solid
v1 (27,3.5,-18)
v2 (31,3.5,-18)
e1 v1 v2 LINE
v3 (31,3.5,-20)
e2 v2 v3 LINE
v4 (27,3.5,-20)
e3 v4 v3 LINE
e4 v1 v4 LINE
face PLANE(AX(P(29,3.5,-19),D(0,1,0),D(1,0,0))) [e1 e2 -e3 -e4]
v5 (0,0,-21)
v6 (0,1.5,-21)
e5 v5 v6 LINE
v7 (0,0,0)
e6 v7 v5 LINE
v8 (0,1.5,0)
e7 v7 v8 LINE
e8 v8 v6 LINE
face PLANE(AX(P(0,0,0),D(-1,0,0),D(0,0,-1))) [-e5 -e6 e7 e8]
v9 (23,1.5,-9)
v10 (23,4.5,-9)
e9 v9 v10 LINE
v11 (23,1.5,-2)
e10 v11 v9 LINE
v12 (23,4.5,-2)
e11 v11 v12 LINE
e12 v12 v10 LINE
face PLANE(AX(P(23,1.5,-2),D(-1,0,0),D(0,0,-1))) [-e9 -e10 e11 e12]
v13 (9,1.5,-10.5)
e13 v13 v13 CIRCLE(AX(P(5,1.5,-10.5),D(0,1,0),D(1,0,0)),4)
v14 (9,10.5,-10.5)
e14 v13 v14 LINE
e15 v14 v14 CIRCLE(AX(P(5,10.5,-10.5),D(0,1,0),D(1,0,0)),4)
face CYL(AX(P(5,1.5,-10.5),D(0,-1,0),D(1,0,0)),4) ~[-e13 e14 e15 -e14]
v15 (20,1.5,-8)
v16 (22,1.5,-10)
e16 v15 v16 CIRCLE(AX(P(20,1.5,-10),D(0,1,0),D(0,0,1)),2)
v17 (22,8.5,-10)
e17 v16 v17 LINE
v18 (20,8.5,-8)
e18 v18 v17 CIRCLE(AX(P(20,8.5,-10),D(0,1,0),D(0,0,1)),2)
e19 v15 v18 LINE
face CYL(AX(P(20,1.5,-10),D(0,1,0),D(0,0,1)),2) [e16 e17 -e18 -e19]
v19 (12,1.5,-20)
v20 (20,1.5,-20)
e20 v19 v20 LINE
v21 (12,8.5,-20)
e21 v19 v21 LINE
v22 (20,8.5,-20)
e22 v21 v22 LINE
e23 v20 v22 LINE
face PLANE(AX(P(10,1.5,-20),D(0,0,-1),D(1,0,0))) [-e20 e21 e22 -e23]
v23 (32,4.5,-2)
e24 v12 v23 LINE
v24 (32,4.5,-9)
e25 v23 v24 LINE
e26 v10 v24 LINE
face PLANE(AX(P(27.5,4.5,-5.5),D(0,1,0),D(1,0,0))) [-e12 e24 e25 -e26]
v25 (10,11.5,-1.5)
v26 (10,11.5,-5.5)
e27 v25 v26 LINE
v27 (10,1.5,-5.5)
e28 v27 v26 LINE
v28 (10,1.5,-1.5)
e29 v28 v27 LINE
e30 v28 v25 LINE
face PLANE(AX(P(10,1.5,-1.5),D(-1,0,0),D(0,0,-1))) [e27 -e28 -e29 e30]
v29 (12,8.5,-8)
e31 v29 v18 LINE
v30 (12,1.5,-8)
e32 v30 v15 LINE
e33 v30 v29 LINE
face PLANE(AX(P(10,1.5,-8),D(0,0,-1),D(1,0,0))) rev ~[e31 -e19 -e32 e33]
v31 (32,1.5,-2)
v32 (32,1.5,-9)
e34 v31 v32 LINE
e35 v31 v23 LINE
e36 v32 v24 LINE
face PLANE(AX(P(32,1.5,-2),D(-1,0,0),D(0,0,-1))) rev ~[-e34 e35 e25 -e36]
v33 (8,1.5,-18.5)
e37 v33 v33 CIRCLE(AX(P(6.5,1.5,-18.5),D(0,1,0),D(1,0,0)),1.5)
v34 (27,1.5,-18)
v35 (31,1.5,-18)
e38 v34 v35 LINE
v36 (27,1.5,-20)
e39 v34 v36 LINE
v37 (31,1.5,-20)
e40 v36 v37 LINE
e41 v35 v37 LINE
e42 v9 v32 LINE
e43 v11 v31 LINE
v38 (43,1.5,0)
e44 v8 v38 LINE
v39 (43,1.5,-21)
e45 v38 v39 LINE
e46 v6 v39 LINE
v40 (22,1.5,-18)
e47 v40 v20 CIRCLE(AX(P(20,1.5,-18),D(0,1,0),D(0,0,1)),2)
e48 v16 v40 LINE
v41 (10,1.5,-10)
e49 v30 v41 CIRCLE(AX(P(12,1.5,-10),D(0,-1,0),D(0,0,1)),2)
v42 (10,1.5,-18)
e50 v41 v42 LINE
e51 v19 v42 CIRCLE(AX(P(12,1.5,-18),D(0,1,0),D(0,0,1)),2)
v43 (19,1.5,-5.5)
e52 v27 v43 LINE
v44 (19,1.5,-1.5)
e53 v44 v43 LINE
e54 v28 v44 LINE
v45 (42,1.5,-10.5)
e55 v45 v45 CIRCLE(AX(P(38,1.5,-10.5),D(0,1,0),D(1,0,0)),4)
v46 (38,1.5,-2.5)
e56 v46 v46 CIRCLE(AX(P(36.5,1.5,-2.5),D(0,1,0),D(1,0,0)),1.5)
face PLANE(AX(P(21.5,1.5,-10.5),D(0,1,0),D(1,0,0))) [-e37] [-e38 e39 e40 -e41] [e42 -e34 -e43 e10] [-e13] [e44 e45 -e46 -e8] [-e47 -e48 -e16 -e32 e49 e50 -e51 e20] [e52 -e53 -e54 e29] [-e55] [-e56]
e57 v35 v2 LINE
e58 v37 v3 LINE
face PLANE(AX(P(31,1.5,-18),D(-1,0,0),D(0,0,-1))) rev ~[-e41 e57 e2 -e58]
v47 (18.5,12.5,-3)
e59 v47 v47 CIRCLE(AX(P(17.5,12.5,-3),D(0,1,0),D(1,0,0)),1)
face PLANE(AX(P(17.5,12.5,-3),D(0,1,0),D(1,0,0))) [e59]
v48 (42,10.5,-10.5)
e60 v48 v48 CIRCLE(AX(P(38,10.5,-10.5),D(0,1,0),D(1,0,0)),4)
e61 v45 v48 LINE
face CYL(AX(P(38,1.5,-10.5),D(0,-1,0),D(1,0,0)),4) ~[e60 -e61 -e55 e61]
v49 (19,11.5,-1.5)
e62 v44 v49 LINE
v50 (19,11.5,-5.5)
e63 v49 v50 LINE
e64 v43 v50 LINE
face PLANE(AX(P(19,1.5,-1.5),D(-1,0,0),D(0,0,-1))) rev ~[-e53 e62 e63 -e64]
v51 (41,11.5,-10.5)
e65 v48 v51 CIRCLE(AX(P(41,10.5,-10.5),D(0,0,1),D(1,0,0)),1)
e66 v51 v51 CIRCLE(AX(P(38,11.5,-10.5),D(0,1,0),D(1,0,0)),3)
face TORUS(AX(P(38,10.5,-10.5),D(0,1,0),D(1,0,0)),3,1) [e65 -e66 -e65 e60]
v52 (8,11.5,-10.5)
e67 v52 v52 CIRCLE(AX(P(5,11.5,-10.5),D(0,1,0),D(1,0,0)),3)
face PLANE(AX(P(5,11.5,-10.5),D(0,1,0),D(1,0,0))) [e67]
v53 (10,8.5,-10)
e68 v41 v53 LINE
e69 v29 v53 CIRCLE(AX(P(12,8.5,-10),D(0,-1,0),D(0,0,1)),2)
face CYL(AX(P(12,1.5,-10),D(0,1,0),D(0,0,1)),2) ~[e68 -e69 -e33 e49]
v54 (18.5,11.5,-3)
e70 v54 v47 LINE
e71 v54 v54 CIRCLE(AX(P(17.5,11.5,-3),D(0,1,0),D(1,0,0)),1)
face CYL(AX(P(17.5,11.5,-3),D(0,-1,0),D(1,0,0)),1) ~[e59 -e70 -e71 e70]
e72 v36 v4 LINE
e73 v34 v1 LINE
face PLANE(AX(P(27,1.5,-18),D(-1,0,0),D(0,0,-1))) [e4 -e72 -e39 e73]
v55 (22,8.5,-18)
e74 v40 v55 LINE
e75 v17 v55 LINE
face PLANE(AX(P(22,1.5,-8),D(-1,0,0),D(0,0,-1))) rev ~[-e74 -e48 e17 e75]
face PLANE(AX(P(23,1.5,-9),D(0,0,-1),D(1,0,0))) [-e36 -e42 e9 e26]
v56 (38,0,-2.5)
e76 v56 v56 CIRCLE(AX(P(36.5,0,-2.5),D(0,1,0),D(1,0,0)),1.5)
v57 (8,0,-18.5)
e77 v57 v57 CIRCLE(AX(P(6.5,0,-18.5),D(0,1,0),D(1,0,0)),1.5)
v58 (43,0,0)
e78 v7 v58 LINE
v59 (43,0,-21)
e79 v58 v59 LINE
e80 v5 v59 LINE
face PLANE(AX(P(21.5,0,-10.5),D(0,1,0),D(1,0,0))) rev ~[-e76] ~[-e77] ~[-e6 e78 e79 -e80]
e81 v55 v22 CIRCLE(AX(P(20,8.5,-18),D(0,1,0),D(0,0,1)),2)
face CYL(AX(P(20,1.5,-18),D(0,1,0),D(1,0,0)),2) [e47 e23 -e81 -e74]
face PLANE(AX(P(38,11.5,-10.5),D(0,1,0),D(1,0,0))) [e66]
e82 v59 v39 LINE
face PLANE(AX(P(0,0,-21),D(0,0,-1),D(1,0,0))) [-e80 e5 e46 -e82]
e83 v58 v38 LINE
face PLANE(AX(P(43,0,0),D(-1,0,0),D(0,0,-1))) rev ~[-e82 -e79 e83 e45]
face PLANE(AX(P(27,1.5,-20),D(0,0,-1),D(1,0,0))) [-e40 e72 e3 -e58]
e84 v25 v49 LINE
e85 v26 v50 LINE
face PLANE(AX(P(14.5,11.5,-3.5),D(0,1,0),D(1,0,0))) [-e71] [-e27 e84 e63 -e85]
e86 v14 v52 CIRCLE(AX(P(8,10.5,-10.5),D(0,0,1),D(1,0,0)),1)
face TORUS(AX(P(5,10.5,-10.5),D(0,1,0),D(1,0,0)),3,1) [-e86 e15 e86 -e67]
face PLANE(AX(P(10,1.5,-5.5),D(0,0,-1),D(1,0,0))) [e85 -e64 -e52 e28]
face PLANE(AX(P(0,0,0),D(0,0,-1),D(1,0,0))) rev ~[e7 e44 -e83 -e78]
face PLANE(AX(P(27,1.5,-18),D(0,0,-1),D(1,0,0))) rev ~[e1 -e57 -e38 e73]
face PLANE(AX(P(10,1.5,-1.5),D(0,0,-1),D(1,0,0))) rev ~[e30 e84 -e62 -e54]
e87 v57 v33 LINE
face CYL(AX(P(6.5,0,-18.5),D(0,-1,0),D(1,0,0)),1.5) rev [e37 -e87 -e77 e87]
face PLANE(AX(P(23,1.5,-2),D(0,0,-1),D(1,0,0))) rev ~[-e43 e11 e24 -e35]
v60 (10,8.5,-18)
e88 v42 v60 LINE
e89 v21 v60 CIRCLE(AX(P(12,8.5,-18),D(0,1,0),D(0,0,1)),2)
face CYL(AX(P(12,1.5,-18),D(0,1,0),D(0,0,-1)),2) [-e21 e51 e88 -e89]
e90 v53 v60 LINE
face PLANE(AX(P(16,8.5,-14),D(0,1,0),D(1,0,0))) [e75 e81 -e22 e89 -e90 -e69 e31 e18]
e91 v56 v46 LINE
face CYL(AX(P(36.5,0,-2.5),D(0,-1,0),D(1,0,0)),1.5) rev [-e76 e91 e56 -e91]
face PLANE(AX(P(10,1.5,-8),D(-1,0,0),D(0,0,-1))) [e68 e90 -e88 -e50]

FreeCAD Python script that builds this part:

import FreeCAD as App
import Part
import Sketcher


def edges_at(feature, points):
    """Names of the edges that pass closest to the given points."""
    edges = feature.Shape.Edges
    near = lambda p: min(range(len(edges)), key=lambda i: edges[i].distToShape(Part.Vertex(*p))[0])
    return sorted({f"Edge{near(p) + 1}" for p in points})


def add_polygon(sketch, points):
    """Adds a closed chain of lines whose ends are joined by coincident constraints."""
    first, n = sketch.GeometryCount, len(points)
    for a, b in zip(points, points[1:] + points[:1]):
        sketch.addGeometry(Part.LineSegment(App.Vector(*a, 0), App.Vector(*b, 0)), False)
    for i in range(n):
        sketch.addConstraint(Sketcher.Constraint("Coincident", first + i, 2, first + (i + 1) % n, 1))

doc = App.newDocument("Part")
body = doc.addObject("PartDesign::Body", "Body")

# Sketch on XZ plane
sketch1 = doc.addObject("Sketcher::SketchObject", "Sketch")
body.addObject(sketch1)
sketch1.AttachmentSupport = (doc.XZ_Plane, [""])
sketch1.MapMode = "FlatFace"
add_polygon(sketch1, [(0, 21), (0, 0), (43, 0), (43, 21)])  # lines 0-3
sketch1.addGeometry(Part.Circle(App.Vector(36.5, 2.5, 0), App.Vector(0, 0, 1), 1.5), False)  # 4
sketch1.addGeometry(Part.Circle(App.Vector(6.5, 18.5, 0), App.Vector(0, 0, 1), 1.5), False)  # 5
sketch1.addConstraint(Sketcher.Constraint("Vertical", 0))
sketch1.addConstraint(Sketcher.Constraint("Horizontal", 1))
sketch1.addConstraint(Sketcher.Constraint("Vertical", 2))
sketch1.addConstraint(Sketcher.Constraint("Horizontal", 3))
sketch1.addConstraint(Sketcher.Constraint("Coincident", 0, 2, -1, 1))
sketch1.addConstraint(Sketcher.Constraint("Equal", 4, 5))
sketch1.addConstraint(Sketcher.Constraint("Diameter", 4, 3.0))
sketch1.addConstraint(Sketcher.Constraint("DistanceX", 1, 1, 1, 2, 43.0))
sketch1.addConstraint(Sketcher.Constraint("DistanceY", 0, 2, 0, 1, 21.0))
sketch1.addConstraint(Sketcher.Constraint("DistanceX", 5, 3, 4, 3, 30.0))
sketch1.addConstraint(Sketcher.Constraint("DistanceY", 4, 3, 5, 3, 16.0))
sketch1.addConstraint(Sketcher.Constraint("DistanceX", -1, 1, 4, 3, 36.5))
sketch1.addConstraint(Sketcher.Constraint("DistanceY", -1, 1, 4, 3, 2.5))
pad1 = doc.addObject("PartDesign::Pad", "Pad")
body.addObject(pad1)
pad1.Profile = sketch1
pad1.Length = 1.5

# Sketch on XZ plane
sketch2 = doc.addObject("Sketcher::SketchObject", "Sketch001")
body.addObject(sketch2)
sketch2.AttachmentSupport = (doc.XZ_Plane, [""])
sketch2.MapMode = "FlatFace"
sketch2.AttachmentOffset = App.Placement(App.Vector(0, 0, 1.5), App.Rotation())
sketch2.addGeometry(Part.Circle(App.Vector(5, 10.5, 0), App.Vector(0, 0, 1), 4), False)
sketch2.addGeometry(Part.Circle(App.Vector(38, 10.5, 0), App.Vector(0, 0, 1), 4), False)
sketch2.addConstraint(Sketcher.Constraint("Equal", 0, 1))
sketch2.addConstraint(Sketcher.Constraint("Horizontal", 0, 3, 1, 3))
sketch2.addConstraint(Sketcher.Constraint("Diameter", 0, 8.0))
sketch2.addConstraint(Sketcher.Constraint("DistanceX", -1, 1, 0, 3, 5.0))
sketch2.addConstraint(Sketcher.Constraint("DistanceX", -1, 1, 1, 3, 38.0))
sketch2.addConstraint(Sketcher.Constraint("DistanceY", -1, 1, 0, 3, 10.5))
pad2 = doc.addObject("PartDesign::Pad", "Pad001")
body.addObject(pad2)
pad2.Profile = sketch2
pad2.Length = 10
doc.recompute()

fillet = doc.addObject("PartDesign::Fillet", "Fillet")
body.addObject(fillet)
fillet.Base = (pad2, edges_at(pad2, [(1, -11.5, 10.5), (34, -11.5, 10.5)]))
fillet.Radius = 1

# Sketch on XZ plane
sketch3 = doc.addObject("Sketcher::SketchObject", "Sketch002")
body.addObject(sketch3)
sketch3.AttachmentSupport = (doc.XZ_Plane, [""])
sketch3.MapMode = "FlatFace"
sketch3.AttachmentOffset = App.Placement(App.Vector(0, 0, 1.5), App.Rotation())
add_polygon(sketch3, [(10, 20), (10, 8), (22, 8), (22, 20)])  # lines 0-3
sketch3.addConstraint(Sketcher.Constraint("Vertical", 0))
sketch3.addConstraint(Sketcher.Constraint("Horizontal", 1))
sketch3.addConstraint(Sketcher.Constraint("Vertical", 2))
sketch3.addConstraint(Sketcher.Constraint("Horizontal", 3))
sketch3.addConstraint(Sketcher.Constraint("Equal", 3, 0))
sketch3.addConstraint(Sketcher.Constraint("DistanceX", 1, 1, 1, 2, 12.0))
sketch3.addConstraint(Sketcher.Constraint("DistanceX", -1, 1, 0, 2, 10.0))
sketch3.addConstraint(Sketcher.Constraint("DistanceY", -1, 1, 0, 2, 8.0))
pad3 = doc.addObject("PartDesign::Pad", "Pad002")
body.addObject(pad3)
pad3.Profile = sketch3
pad3.Length = 7
doc.recompute()

fillet2 = doc.addObject("PartDesign::Fillet", "Fillet001")
body.addObject(fillet2)
fillet2.Base = (pad3, edges_at(pad3, [
    (22, -5, 20),
    (22, -5, 8),
    (10, -5, 20),
    (10, -5, 8),
]))
fillet2.Radius = 2

# Sketch on XZ plane
sketch4 = doc.addObject("Sketcher::SketchObject", "Sketch003")
body.addObject(sketch4)
sketch4.AttachmentSupport = (doc.XZ_Plane, [""])
sketch4.MapMode = "FlatFace"
sketch4.AttachmentOffset = App.Placement(App.Vector(0, 0, 1.5), App.Rotation())
add_polygon(sketch4, [(10, 5.5), (10, 1.5), (19, 1.5), (19, 5.5)])  # lines 0-3
sketch4.addConstraint(Sketcher.Constraint("Vertical", 0))
sketch4.addConstraint(Sketcher.Constraint("Horizontal", 1))
sketch4.addConstraint(Sketcher.Constraint("Vertical", 2))
sketch4.addConstraint(Sketcher.Constraint("Horizontal", 3))
sketch4.addConstraint(Sketcher.Constraint("DistanceX", 1, 1, 1, 2, 9.0))
sketch4.addConstraint(Sketcher.Constraint("DistanceY", 0, 2, 0, 1, 4.0))
sketch4.addConstraint(Sketcher.Constraint("DistanceX", -1, 1, 0, 2, 10.0))
sketch4.addConstraint(Sketcher.Constraint("DistanceY", -1, 1, 0, 2, 1.5))
pad4 = doc.addObject("PartDesign::Pad", "Pad003")
body.addObject(pad4)
pad4.Profile = sketch4
pad4.Length = 10

# Sketch on XZ plane
sketch5 = doc.addObject("Sketcher::SketchObject", "Sketch004")
body.addObject(sketch5)
sketch5.AttachmentSupport = (doc.XZ_Plane, [""])
sketch5.MapMode = "FlatFace"
sketch5.AttachmentOffset = App.Placement(App.Vector(0, 0, 11.5), App.Rotation())
sketch5.addGeometry(Part.Circle(App.Vector(17.5, 3, 0), App.Vector(0, 0, 1), 1), False)
sketch5.addConstraint(Sketcher.Constraint("Diameter", 0, 2.0))
sketch5.addConstraint(Sketcher.Constraint("DistanceY", -1, 1, 0, 3, 3.0))
sketch5.addConstraint(Sketcher.Constraint("DistanceX", -1, 1, 0, 3, 17.5))
pad5 = doc.addObject("PartDesign::Pad", "Pad004")
body.addObject(pad5)
pad5.Profile = sketch5
pad5.Length = 1

# Sketch on XZ plane
sketch6 = doc.addObject("Sketcher::SketchObject", "Sketch005")
body.addObject(sketch6)
sketch6.AttachmentSupport = (doc.XZ_Plane, [""])
sketch6.MapMode = "FlatFace"
sketch6.AttachmentOffset = App.Placement(App.Vector(0, 0, 1.5), App.Rotation())
add_polygon(sketch6, [(23, 9), (23, 2), (32, 2), (32, 9)])  # lines 0-3
sketch6.addConstraint(Sketcher.Constraint("Vertical", 0))
sketch6.addConstraint(Sketcher.Constraint("Horizontal", 1))
sketch6.addConstraint(Sketcher.Constraint("Vertical", 2))
sketch6.addConstraint(Sketcher.Constraint("Horizontal", 3))
sketch6.addConstraint(Sketcher.Constraint("DistanceX", 1, 1, 1, 2, 9.0))
sketch6.addConstraint(Sketcher.Constraint("DistanceY", 0, 2, 0, 1, 7.0))
sketch6.addConstraint(Sketcher.Constraint("DistanceX", -1, 1, 0, 2, 23.0))
sketch6.addConstraint(Sketcher.Constraint("DistanceY", -1, 1, 0, 2, 2.0))
pad6 = doc.addObject("PartDesign::Pad", "Pad005")
body.addObject(pad6)
pad6.Profile = sketch6
pad6.Length = 3

# Sketch on XZ plane
sketch7 = doc.addObject("Sketcher::SketchObject", "Sketch006")
body.addObject(sketch7)
sketch7.AttachmentSupport = (doc.XZ_Plane, [""])
sketch7.MapMode = "FlatFace"
sketch7.AttachmentOffset = App.Placement(App.Vector(0, 0, 1.5), App.Rotation())
add_polygon(sketch7, [(27, 20), (27, 18), (31, 18), (31, 20)])  # lines 0-3
sketch7.addConstraint(Sketcher.Constraint("Vertical", 0))
sketch7.addConstraint(Sketcher.Constraint("Horizontal", 1))
sketch7.addConstraint(Sketcher.Constraint("Vertical", 2))
sketch7.addConstraint(Sketcher.Constraint("Horizontal", 3))
sketch7.addConstraint(Sketcher.Constraint("DistanceX", 1, 1, 1, 2, 4.0))
sketch7.addConstraint(Sketcher.Constraint("DistanceY", 0, 2, 0, 1, 2.0))
sketch7.addConstraint(Sketcher.Constraint("DistanceX", -1, 1, 0, 2, 27.0))
sketch7.addConstraint(Sketcher.Constraint("DistanceY", -1, 1, 0, 2, 18.0))
pad7 = doc.addObject("PartDesign::Pad", "Pad006")
body.addObject(pad7)
pad7.Profile = sketch7
pad7.Length = 2
body2 = doc.addObject("PartDesign::Body", "Body001")
doc.recompute()

body.Placement = App.Placement(App.Vector(0, 0, 0), App.Rotation(App.Vector(1, 0, 0), 180))
boolean = doc.addObject("PartDesign::Boolean", "Boolean")
body2.addObject(boolean)
boolean.Type = "Fuse"
boolean.addObjects([body])

doc.recompute()
